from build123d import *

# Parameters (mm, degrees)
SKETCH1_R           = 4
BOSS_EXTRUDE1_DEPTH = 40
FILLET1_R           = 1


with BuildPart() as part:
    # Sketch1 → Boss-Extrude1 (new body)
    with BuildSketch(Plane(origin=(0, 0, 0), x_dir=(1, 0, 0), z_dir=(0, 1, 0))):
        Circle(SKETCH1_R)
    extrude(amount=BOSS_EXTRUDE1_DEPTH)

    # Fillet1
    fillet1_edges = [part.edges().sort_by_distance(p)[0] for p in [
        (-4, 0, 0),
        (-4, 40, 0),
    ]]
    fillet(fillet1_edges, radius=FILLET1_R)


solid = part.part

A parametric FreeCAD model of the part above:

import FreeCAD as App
import Part
import Sketcher

V = App.Vector
Q = App.Units.Quantity


def edges_at(feature, points):
    """Names of the edges that pass closest to the given points."""
    edges = feature.Shape.Edges
    near = lambda p: min(range(len(edges)), key=lambda i: edges[i].distToShape(Part.Vertex(*p))[0])
    return sorted({f"Edge{near(p) + 1}" for p in points})

doc = App.newDocument("Part")
body = doc.addObject("PartDesign::Body", "Body")

# Sketch on XZ plane
sketch1 = body.newObject("Sketcher::SketchObject", "Sketch")
sketch1.AttachmentSupport = (doc.getObject("XZ_Plane"), [""])
sketch1.MapMode = "FlatFace"
sketch1.addGeometry(Part.Circle(V(0, 0, 0), V(0, 0, 1), 4), False)
sketch1.addConstraint(Sketcher.Constraint("Coincident", 0, 3, -1, 1))
sketch1.addConstraint(Sketcher.Constraint("Diameter", 0, Q("8 mm")))
pad1 = body.newObject("PartDesign::Pad", "Pad")
pad1.Profile = sketch1
pad1.Length = 40
pad1.Reversed = True
doc.recompute()

fillet = body.newObject("PartDesign::Fillet", "Fillet")
fillet.Base = (pad1, edges_at(pad1, [(-4, 0, 0), (-4, 40, 0)]))
fillet.Radius = 1

doc.recompute()
